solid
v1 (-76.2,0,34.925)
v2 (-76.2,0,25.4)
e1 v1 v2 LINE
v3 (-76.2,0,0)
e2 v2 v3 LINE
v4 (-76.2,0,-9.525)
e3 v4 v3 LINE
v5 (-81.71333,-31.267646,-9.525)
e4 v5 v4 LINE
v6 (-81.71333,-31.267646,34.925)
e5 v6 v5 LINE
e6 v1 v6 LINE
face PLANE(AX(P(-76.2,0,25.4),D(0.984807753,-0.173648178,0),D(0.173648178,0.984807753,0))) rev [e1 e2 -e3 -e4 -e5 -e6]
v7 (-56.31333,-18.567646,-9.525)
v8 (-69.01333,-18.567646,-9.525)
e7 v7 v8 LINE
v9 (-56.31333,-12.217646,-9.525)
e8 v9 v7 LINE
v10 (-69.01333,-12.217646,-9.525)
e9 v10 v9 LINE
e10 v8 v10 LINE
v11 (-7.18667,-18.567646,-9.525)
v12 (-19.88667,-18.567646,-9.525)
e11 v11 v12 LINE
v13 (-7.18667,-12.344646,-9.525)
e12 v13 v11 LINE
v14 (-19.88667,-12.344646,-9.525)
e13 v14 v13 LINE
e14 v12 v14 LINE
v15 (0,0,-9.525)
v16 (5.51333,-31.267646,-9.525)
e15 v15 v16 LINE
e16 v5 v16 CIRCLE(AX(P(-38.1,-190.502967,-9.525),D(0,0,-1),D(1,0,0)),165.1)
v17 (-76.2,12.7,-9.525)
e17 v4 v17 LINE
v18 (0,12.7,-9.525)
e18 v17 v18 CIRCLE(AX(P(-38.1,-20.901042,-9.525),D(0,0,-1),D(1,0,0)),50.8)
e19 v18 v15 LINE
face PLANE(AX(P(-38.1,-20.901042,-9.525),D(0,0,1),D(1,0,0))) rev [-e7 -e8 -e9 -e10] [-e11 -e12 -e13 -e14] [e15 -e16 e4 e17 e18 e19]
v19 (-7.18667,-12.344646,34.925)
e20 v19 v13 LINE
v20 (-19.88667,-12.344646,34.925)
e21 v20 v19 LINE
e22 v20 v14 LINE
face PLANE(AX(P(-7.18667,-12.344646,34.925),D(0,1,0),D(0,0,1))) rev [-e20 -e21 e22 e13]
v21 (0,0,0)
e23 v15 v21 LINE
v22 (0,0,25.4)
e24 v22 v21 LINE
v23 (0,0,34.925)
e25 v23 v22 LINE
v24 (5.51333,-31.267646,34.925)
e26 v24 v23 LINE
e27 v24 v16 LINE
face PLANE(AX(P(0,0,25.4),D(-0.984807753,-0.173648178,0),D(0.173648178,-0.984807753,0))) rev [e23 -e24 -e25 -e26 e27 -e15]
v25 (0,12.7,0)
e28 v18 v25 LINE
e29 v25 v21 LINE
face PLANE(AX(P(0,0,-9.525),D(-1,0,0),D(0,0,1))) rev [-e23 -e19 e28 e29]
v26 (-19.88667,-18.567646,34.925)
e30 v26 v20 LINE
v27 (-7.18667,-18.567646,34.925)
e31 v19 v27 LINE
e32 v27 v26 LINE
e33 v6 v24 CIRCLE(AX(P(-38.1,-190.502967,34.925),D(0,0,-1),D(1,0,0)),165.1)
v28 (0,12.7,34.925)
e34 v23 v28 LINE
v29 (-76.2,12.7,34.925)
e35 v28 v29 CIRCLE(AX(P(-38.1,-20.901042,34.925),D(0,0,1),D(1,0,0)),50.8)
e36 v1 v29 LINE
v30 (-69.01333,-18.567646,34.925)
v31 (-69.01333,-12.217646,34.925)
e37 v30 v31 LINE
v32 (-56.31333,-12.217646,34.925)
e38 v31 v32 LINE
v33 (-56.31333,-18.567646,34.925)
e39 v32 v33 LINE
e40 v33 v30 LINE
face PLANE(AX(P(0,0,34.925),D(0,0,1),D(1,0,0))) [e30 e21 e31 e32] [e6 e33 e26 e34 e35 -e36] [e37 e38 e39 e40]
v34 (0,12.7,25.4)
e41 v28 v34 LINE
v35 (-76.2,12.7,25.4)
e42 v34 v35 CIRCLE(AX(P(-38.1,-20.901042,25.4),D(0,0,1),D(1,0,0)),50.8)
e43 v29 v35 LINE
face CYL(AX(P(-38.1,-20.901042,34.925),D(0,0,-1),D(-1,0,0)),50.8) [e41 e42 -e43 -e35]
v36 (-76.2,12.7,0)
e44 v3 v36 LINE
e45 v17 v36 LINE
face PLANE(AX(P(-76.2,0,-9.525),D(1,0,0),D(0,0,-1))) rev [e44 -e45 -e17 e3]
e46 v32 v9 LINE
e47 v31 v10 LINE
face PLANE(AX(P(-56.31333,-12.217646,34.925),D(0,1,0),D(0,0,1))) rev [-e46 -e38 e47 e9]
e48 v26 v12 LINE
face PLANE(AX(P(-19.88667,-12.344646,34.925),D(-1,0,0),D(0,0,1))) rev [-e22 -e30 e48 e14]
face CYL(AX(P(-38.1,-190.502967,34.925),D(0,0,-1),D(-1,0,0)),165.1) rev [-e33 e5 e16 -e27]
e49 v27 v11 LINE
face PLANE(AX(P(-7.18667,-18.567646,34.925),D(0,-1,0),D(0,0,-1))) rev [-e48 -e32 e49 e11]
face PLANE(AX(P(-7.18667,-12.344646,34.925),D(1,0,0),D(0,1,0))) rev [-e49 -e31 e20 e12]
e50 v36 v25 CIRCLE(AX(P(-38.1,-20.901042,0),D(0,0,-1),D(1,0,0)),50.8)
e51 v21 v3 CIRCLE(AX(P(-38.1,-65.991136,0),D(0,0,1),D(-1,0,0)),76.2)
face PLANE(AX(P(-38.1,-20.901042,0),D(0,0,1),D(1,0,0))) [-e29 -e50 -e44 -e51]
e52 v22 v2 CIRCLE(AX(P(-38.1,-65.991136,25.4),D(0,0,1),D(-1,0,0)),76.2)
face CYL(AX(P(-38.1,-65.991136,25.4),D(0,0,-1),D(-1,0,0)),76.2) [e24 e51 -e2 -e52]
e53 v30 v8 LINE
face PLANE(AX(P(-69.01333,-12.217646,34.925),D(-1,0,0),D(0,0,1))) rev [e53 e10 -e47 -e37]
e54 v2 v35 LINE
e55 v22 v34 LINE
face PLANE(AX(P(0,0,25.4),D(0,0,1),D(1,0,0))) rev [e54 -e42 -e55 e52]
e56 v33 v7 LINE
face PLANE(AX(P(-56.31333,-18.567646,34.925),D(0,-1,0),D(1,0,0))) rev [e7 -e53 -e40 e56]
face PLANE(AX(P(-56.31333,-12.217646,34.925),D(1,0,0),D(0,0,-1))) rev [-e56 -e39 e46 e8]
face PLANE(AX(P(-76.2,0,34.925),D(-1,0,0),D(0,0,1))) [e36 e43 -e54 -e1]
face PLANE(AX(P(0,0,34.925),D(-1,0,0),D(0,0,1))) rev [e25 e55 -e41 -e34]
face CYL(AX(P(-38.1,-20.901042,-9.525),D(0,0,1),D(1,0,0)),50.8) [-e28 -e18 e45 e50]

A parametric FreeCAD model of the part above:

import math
import FreeCAD as App
import Part
import Sketcher
Q = App.Units.Quantity


def add_polygon(sketch, points):
    """Adds a closed chain of lines whose ends are joined by coincident constraints."""
    first, n = sketch.GeometryCount, len(points)
    for a, b in zip(points, points[1:] + points[:1]):
        sketch.addGeometry(Part.LineSegment(App.Vector(*a, 0), App.Vector(*b, 0)), False)
    for i in range(n):
        sketch.addConstraint(Sketcher.Constraint("Coincident", first + i, 2, first + (i + 1) % n, 1))

doc = App.newDocument("Part")
body = doc.addObject("PartDesign::Body", "Body")

# Sketch on XY plane
sketch1 = doc.addObject("Sketcher::SketchObject", "Sketch")
body.addObject(sketch1)
sketch1.AttachmentSupport = (doc.XY_Plane, [""])
sketch1.MapMode = "FlatFace"
sketch1.addGeometry([
    Part.LineSegment(App.Vector(-76.2, 0, 0), App.Vector(-81.71333, -31.267646, 0)),
    Part.LineSegment(App.Vector(-81.71333, -31.267646, 0), App.Vector(5.51333, -31.267646, 0)),
    Part.LineSegment(App.Vector(5.51333, -31.267646, 0), App.Vector(0, 0, 0)),
    Part.ArcOfCircle(Part.Circle(App.Vector(-38.1, -65.991136, 0), App.Vector(0, 0, 1), 76.2), math.radians(60), math.radians(120)),
], False)
sketch1.addConstraint([
    Sketcher.Constraint("Coincident", 0, 2, 1, 1),
    Sketcher.Constraint("Coincident", 1, 2, 2, 1),
    Sketcher.Constraint("Coincident", 2, 2, 3, 1),
    Sketcher.Constraint("Coincident", 3, 2, 0, 1),
    Sketcher.Constraint("Horizontal", 1),
    Sketcher.Constraint("Coincident", 2, 2, -1, 1),
    Sketcher.Constraint("PointOnObject", 3, 2, -1),
    Sketcher.Constraint("Equal", 0, 2),
    Sketcher.Constraint("Radius", 3, Q("3 in")),
    Sketcher.Constraint("DistanceX", 3, 2, -1, 1, Q("3 in")),
    Sketcher.Constraint("Angle", 0, Q("-100 deg")),
    Sketcher.Constraint("Distance", 0, Q("1.25 in")),
])
pad1 = doc.addObject("PartDesign::Pad", "Pad")
body.addObject(pad1)
pad1.Profile = sketch1
pad1.Length = Q("1 in")

# Sketch on XY plane
sketch2 = doc.addObject("Sketcher::SketchObject", "Sketch001")
body.addObject(sketch2)
sketch2.AttachmentSupport = (doc.XY_Plane, [""])
sketch2.MapMode = "FlatFace"
sketch2.AttachmentOffset = App.Placement(App.Vector(0, 0, 1 * 25.4), App.Rotation())
sketch2.addGeometry([
    Part.LineSegment(App.Vector(-76.2, 12.7, 0), App.Vector(-76.2, 0, 0)),  # 0
    Part.LineSegment(App.Vector(-76.2, 0, 0), App.Vector(-81.71333, -31.267646, 0)),  # 1
    Part.LineSegment(App.Vector(-81.71333, -31.267646, 0), App.Vector(5.51333, -31.267646, 0)),  # 2
    Part.LineSegment(App.Vector(5.51333, -31.267646, 0), App.Vector(0, 0, 0)),  # 3
    Part.LineSegment(App.Vector(0, 0, 0), App.Vector(0, 12.7, 0)),  # 4
    Part.ArcOfCircle(Part.Circle(App.Vector(-38.1, -20.901042, 0), App.Vector(0, 0, 1), 50.8), math.radians(41.409622), math.radians(138.590378)),  # 5
], False)
sketch2.addConstraint([
    Sketcher.Constraint("Coincident", 0, 2, 1, 1),
    Sketcher.Constraint("Coincident", 1, 2, 2, 1),
    Sketcher.Constraint("Coincident", 2, 2, 3, 1),
    Sketcher.Constraint("Coincident", 3, 2, 4, 1),
    Sketcher.Constraint("Coincident", 4, 2, 5, 1),
    Sketcher.Constraint("Coincident", 5, 2, 0, 1),
    Sketcher.Constraint("Vertical", 0),
    Sketcher.Constraint("Horizontal", 2),
    Sketcher.Constraint("Vertical", 4),
    Sketcher.Constraint("Coincident", 3, 2, -1, 1),
    Sketcher.Constraint("PointOnObject", 0, 2, -1),
    Sketcher.Constraint("Horizontal", 4, 2, 5, 2),
    Sketcher.Constraint("Equal", 1, 3),
    Sketcher.Constraint("Radius", 5, Q("2 in")),
    Sketcher.Constraint("DistanceY", 0, 2, 0, 1, Q("0.5 in")),
    Sketcher.Constraint("DistanceX", 0, 2, -1, 1, Q("3 in")),
    Sketcher.Constraint("Angle", 1, Q("-100 deg")),
    Sketcher.Constraint("Distance", 1, Q("1.25 in")),
])
pad2 = doc.addObject("PartDesign::Pad", "Pad001")
body.addObject(pad2)
pad2.Profile = sketch2
pad2.Length = Q("0.375 in")

# Sketch on XY plane
sketch3 = doc.addObject("Sketcher::SketchObject", "Sketch002")
body.addObject(sketch3)
sketch3.AttachmentSupport = (doc.XY_Plane, [""])
sketch3.MapMode = "FlatFace"
sketch3.AttachmentOffset = App.Placement(App.Vector(0, 0, -0.375 * 25.4), App.Rotation())
sketch3.addGeometry([
    Part.LineSegment(App.Vector(0, 12.7, 0), App.Vector(0, 0, 0)),  # 0
    Part.LineSegment(App.Vector(0, 0, 0), App.Vector(5.51333, -31.267646, 0)),  # 1
    Part.LineSegment(App.Vector(5.51333, -31.267646, 0), App.Vector(-81.71333, -31.267646, 0)),  # 2
    Part.LineSegment(App.Vector(-81.71333, -31.267646, 0), App.Vector(-76.2, 0, 0)),  # 3
    Part.LineSegment(App.Vector(-76.2, 0, 0), App.Vector(-76.2, 12.7, 0)),  # 4
    Part.ArcOfCircle(Part.Circle(App.Vector(-38.1, -20.901042, 0), App.Vector(0, 0, 1), 50.8), math.radians(41.409622), math.radians(138.590378)),  # 5
], False)
sketch3.addConstraint([
    Sketcher.Constraint("Coincident", 0, 2, 1, 1),
    Sketcher.Constraint("Coincident", 1, 2, 2, 1),
    Sketcher.Constraint("Coincident", 2, 2, 3, 1),
    Sketcher.Constraint("Coincident", 3, 2, 4, 1),
    Sketcher.Constraint("Coincident", 4, 2, 5, 2),
    Sketcher.Constraint("Coincident", 5, 1, 0, 1),
    Sketcher.Constraint("Vertical", 0),
    Sketcher.Constraint("Horizontal", 2),
    Sketcher.Constraint("Vertical", 4),
    Sketcher.Constraint("Coincident", 0, 2, -1, 1),
    Sketcher.Constraint("PointOnObject", 3, 2, -1),
    Sketcher.Constraint("Horizontal", 4, 2, 5, 1),
    Sketcher.Constraint("Equal", 1, 3),
    Sketcher.Constraint("Radius", 5, Q("2 in")),
    Sketcher.Constraint("DistanceY", 0, 2, 0, 1, Q("0.5 in")),
    Sketcher.Constraint("DistanceX", 3, 2, -1, 1, Q("3 in")),
    Sketcher.Constraint("Angle", 1, Q("-80 deg")),
    Sketcher.Constraint("Distance", 1, Q("1.25 in")),
])
pad3 = doc.addObject("PartDesign::Pad", "Pad002")
body.addObject(pad3)
pad3.Profile = sketch3
pad3.Length = Q("0.375 in")

# Sketch on XY plane
sketch4 = doc.addObject("Sketcher::SketchObject", "Sketch003")
body.addObject(sketch4)
sketch4.AttachmentSupport = (doc.XY_Plane, [""])
sketch4.MapMode = "FlatFace"
sketch4.AttachmentOffset = App.Placement(App.Vector(0, 0, -0.375 * 25.4), App.Rotation())
sketch4.addGeometry([
    Part.LineSegment(App.Vector(5.51333, -31.267646, 0), App.Vector(-81.71333, -31.267646, 0)),
    Part.ArcOfCircle(Part.Circle(App.Vector(-38.1, -190.502967, 0), App.Vector(0, 0, 1), 165.1), math.radians(74.682769), math.radians(105.317231)),
], False)
sketch4.addConstraint([
    Sketcher.Constraint("Coincident", 0, 1, 1, 1),
    Sketcher.Constraint("Coincident", 1, 2, 0, 2),
    Sketcher.Constraint("Horizontal", 0),
    Sketcher.Constraint("Radius", 1, Q("6.5 in")),
    Sketcher.Constraint("DistanceX", 1, 3, -1, 1, Q("1.5 in")),
    Sketcher.Constraint("DistanceX", 0, 2, 0, 1, Q("87.226659 mm")),
    Sketcher.Constraint("DistanceY", 1, 3, -1, 1, Q("190.502967 mm")),
])
pocket1 = doc.addObject("PartDesign::Pocket", "Pocket")
body.addObject(pocket1)
pocket1.Profile = sketch4
pocket1.Type = "ThroughAll"
pocket1.Reversed = True

# Sketch on XY plane
sketch5 = doc.addObject("Sketcher::SketchObject", "Sketch004")
body.addObject(sketch5)
sketch5.AttachmentSupport = (doc.XY_Plane, [""])
sketch5.MapMode = "FlatFace"
sketch5.AttachmentOffset = App.Placement(App.Vector(0, 0, -0.375 * 25.4), App.Rotation())
add_polygon(sketch5, [(-7.18667, -12.344646), (-7.18667, -18.567646), (-19.88667, -18.567646), (-19.88667, -12.344646)])  # lines 0-3
add_polygon(sketch5, [(-56.31333, -12.217646), (-56.31333, -18.567646), (-69.01333, -18.567646), (-69.01333, -12.217646)])  # lines 4-7
sketch5.addConstraint([
    Sketcher.Constraint("Vertical", 0),
    Sketcher.Constraint("Horizontal", 1),
    Sketcher.Constraint("Vertical", 2),
    Sketcher.Constraint("Horizontal", 3),
    Sketcher.Constraint("Vertical", 4),
    Sketcher.Constraint("Horizontal", 5),
    Sketcher.Constraint("Vertical", 6),
    Sketcher.Constraint("Horizontal", 7),
    Sketcher.Constraint("Horizontal", 1, 2, 4, 2),
    Sketcher.Constraint("Equal", 3, 5),
    Sketcher.Constraint("DistanceX", 1, 2, 1, 1, Q("0.5 in")),
    Sketcher.Constraint("DistanceY", 4, 2, 4, 1, Q("0.25 in")),
    Sketcher.Constraint("DistanceY", 0, 2, 0, 1, Q("0.245 in")),
    Sketcher.Constraint("DistanceX", 0, 2, -1, 1, Q("7.18667 mm")),
    Sketcher.Constraint("DistanceX", 4, 2, -1, 1, Q("56.31333 mm")),
    Sketcher.Constraint("DistanceY", 0, 2, -1, 1, Q("18.567646 mm")),
])
pocket2 = doc.addObject("PartDesign::Pocket", "Pocket001")
body.addObject(pocket2)
pocket2.Profile = sketch5
pocket2.Type = "ThroughAll"
pocket2.Reversed = True

doc.recompute()
